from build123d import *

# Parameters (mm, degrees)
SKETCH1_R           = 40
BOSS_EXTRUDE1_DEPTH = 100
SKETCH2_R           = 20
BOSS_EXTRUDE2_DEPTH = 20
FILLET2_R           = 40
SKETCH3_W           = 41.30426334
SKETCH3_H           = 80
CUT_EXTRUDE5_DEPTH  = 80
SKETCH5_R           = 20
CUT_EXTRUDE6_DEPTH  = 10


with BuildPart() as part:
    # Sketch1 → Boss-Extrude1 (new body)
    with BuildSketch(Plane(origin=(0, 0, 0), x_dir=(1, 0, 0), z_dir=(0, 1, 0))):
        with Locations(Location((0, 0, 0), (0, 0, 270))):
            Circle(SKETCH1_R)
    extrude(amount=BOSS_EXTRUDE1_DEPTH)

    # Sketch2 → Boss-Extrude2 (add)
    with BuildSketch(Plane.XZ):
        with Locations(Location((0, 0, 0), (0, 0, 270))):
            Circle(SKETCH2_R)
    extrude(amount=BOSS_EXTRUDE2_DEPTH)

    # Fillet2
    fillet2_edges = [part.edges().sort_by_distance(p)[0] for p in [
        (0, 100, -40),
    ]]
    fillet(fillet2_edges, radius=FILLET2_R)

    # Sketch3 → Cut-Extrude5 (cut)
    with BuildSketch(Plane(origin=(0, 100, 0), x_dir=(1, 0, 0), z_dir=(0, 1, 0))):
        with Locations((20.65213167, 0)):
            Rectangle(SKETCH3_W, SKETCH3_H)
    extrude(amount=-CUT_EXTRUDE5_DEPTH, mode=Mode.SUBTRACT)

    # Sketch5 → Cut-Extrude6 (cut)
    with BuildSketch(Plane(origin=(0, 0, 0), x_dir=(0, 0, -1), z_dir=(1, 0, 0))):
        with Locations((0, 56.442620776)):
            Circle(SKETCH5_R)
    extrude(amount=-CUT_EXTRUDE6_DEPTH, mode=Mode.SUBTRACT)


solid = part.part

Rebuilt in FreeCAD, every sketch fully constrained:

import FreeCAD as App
import Part
import Sketcher
from FreeCAD import Vector
Q = App.Units.Quantity


def edges_at(feature, points):
    """Names of the edges that pass closest to the given points."""
    edges = feature.Shape.Edges
    near = lambda p: min(range(len(edges)), key=lambda i: edges[i].distToShape(Part.Vertex(*p))[0])
    return sorted({f"Edge{near(p) + 1}" for p in points})


def add_polygon(sketch, points):
    """Adds a closed chain of lines whose ends are joined by coincident constraints."""
    first, n = sketch.GeometryCount, len(points)
    for a, b in zip(points, points[1:] + points[:1]):
        sketch.addGeometry(Part.LineSegment(App.Vector(*a, 0), App.Vector(*b, 0)), False)
    for i in range(n):
        sketch.addConstraint(Sketcher.Constraint("Coincident", first + i, 2, first + (i + 1) % n, 1))

doc = App.newDocument("Part")
body = doc.addObject("PartDesign::Body", "Body")

# Sketch on XZ plane
sketch1 = body.newObject("Sketcher::SketchObject", "Sketch")
sketch1.AttachmentSupport = (doc.getObject("XZ_Plane"), [""])
sketch1.MapMode = "FlatFace"
sketch1.addGeometry(Part.Circle(Vector(0, 0, 0), Vector(0, 0, 1), 40), False)
sketch1.addConstraint(Sketcher.Constraint("Coincident", 0, 3, -1, 1))
sketch1.addConstraint(Sketcher.Constraint("Diameter", 0, Q("80 mm")))
pad1 = body.newObject("PartDesign::Pad", "Pad")
pad1.Profile = sketch1
pad1.Length = 100
pad1.Reversed = True

# Sketch on XZ plane
sketch2 = body.newObject("Sketcher::SketchObject", "Sketch001")
sketch2.AttachmentSupport = (doc.getObject("XZ_Plane"), [""])
sketch2.MapMode = "FlatFace"
sketch2.addGeometry(Part.Circle(Vector(0, 0, 0), Vector(0, 0, 1), 20), False)
sketch2.addConstraint(Sketcher.Constraint("Coincident", 0, 3, -1, 1))
sketch2.addConstraint(Sketcher.Constraint("Diameter", 0, Q("40 mm")))
pad2 = body.newObject("PartDesign::Pad", "Pad001")
pad2.Profile = sketch2
pad2.Length = 20
doc.recompute()

fillet = body.newObject("PartDesign::Fillet", "Fillet")
fillet.Base = (pad2, edges_at(pad2, [(0, 100, -40)]))
fillet.Radius = 40

# Sketch on XZ plane
sketch3 = body.newObject("Sketcher::SketchObject", "Sketch002")
sketch3.AttachmentSupport = (doc.getObject("XZ_Plane"), [""])
sketch3.MapMode = "FlatFace"
sketch3.AttachmentOffset = App.Placement(Vector(0, 0, -100), App.Rotation())
add_polygon(sketch3, [(0, -40), (0, 40), (41, 40), (41, -40)])  # lines 0-3
sketch3.addConstraint(Sketcher.Constraint("Vertical", 0))
sketch3.addConstraint(Sketcher.Constraint("Horizontal", 1))
sketch3.addConstraint(Sketcher.Constraint("Vertical", 2))
sketch3.addConstraint(Sketcher.Constraint("Horizontal", 3))
sketch3.addConstraint(Sketcher.Constraint("Symmetric", 0, 2, 3, 2, -1, 1))
sketch3.addConstraint(Sketcher.Constraint("DistanceY", 0, 1, 0, 2, Q("80 mm")))
sketch3.addConstraint(Sketcher.Constraint("DistanceX", 1, 1, 1, 2, Q("41.304263 mm")))
pocket1 = body.newObject("PartDesign::Pocket", "Pocket")
pocket1.Profile = sketch3
pocket1.Length = 80
pocket1.Reversed = True

# Sketch on YZ plane
sketch4 = body.newObject("Sketcher::SketchObject", "Sketch003")
sketch4.AttachmentSupport = (doc.getObject("YZ_Plane"), [""])
sketch4.MapMode = "FlatFace"
sketch4.addGeometry(Part.Circle(Vector(56, 0, 0), Vector(0, 0, 1), 20), False)
sketch4.addConstraint(Sketcher.Constraint("PointOnObject", 0, 3, -1))
sketch4.addConstraint(Sketcher.Constraint("Diameter", 0, Q("40 mm")))
sketch4.addConstraint(Sketcher.Constraint("DistanceX", -1, 1, 0, 3, Q("56.442621 mm")))
pocket2 = body.newObject("PartDesign::Pocket", "Pocket001")
pocket2.Profile = sketch4
pocket2.Length = 10

doc.recompute()
